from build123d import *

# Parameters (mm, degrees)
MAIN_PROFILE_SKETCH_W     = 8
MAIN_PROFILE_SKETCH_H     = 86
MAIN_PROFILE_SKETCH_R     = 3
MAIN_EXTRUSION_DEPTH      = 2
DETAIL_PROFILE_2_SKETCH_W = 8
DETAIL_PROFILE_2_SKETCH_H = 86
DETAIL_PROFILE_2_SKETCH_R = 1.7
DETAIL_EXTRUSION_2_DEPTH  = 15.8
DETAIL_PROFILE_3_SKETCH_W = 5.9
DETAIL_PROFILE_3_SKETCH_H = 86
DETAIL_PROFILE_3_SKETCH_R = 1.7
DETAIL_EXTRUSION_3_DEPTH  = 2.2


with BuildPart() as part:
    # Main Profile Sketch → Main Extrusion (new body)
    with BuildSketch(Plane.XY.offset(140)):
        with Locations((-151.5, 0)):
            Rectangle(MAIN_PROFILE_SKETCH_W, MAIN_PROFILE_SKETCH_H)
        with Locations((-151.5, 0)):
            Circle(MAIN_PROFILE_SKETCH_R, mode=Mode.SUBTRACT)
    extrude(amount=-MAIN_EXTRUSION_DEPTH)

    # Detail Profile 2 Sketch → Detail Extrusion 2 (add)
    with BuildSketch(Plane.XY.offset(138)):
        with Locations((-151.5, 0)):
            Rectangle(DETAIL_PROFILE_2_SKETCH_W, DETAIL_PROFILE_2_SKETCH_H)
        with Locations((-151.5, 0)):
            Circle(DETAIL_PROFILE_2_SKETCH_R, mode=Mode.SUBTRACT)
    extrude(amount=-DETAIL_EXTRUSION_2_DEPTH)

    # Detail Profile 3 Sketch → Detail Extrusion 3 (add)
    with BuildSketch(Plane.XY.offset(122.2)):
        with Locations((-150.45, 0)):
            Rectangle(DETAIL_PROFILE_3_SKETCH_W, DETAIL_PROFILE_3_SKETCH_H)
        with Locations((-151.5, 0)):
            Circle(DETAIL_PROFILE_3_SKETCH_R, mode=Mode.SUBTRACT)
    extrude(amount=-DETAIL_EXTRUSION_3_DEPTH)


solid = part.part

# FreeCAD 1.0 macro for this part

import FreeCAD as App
import Part
import Sketcher

V = App.Vector

doc = App.newDocument("Part")
params = doc.addObject("Spreadsheet::Sheet", "Params")
for row, (alias, value) in enumerate([
    ("sketch1_diameter", "6 mm"),
    ("sketch1_width", "8 mm"),
    ("sketch1_height", "86 mm"),
    ("pad1_length", "2 mm"),
    ("sketch2_diameter", "3.4 mm"),
    ("sketch2_width", "8 mm"),
    ("sketch2_height", "86 mm"),
    ("pad2_length", "15.8 mm"),
    ("sketch3_diameter", "3.4 mm"),
    ("sketch3_height", "86 mm"),
    ("sketch3_width", "5.9 mm"),
    ("pad3_length", "2.2 mm"),
], start=1):
    params.set(f"A{row}", alias)
    params.set(f"B{row}", "=" + value)
    params.setAlias(f"B{row}", alias)

body = doc.addObject("PartDesign::Body", "Body")

# Sketch on XY plane
sketch1 = body.newObject("Sketcher::SketchObject", "Sketch")
sketch1.AttachmentSupport = (doc.getObject("XY_Plane"), [""])
sketch1.MapMode = "FlatFace"
sketch1.AttachmentOffset = App.Placement(V(0, 0, 140), App.Rotation())
sketch1.addGeometry(Part.LineSegment(V(-155.5, 43, 0), V(-155.5, -43, 0)), False)
sketch1.addGeometry(Part.LineSegment(V(-155.5, -43, 0), V(-147.5, -43, 0)), False)
sketch1.addGeometry(Part.LineSegment(V(-147.5, -43, 0), V(-147.5, 43, 0)), False)
sketch1.addGeometry(Part.LineSegment(V(-147.5, 43, 0), V(-155.5, 43, 0)), False)
sketch1.addGeometry(Part.Circle(V(-151.5, 0, 0), V(0, 0, 1), 3), False)
sketch1.addConstraint(Sketcher.Constraint("Coincident", 0, 2, 1, 1))
sketch1.addConstraint(Sketcher.Constraint("Coincident", 1, 2, 2, 1))
sketch1.addConstraint(Sketcher.Constraint("Coincident", 2, 2, 3, 1))
sketch1.addConstraint(Sketcher.Constraint("Coincident", 3, 2, 0, 1))
sketch1.addConstraint(Sketcher.Constraint("Vertical", 0))
sketch1.addConstraint(Sketcher.Constraint("Horizontal", 1))
sketch1.addConstraint(Sketcher.Constraint("Vertical", 2))
sketch1.addConstraint(Sketcher.Constraint("Horizontal", 3))
sketch1.addConstraint(Sketcher.Constraint("PointOnObject", 4, 3, -1))
sketch1.addConstraint(Sketcher.Constraint("Diameter", 4, 6.0))
sketch1.addConstraint(Sketcher.Constraint("DistanceX", 1, 1, 1, 2, 8.0))
sketch1.addConstraint(Sketcher.Constraint("DistanceY", 0, 2, 0, 1, 86.0))
sketch1.addConstraint(Sketcher.Constraint("DistanceY", 0, 2, -1, 1, 43.0))
sketch1.addConstraint(Sketcher.Constraint("DistanceX", 0, 2, 4, 3, 4.0))
sketch1.addConstraint(Sketcher.Constraint("DistanceX", 4, 3, -1, 1, 151.5))
sketch1.setExpression("Constraints[9]", "Params.sketch1_diameter")
sketch1.setExpression("Constraints[10]", "Params.sketch1_width")
sketch1.setExpression("Constraints[11]", "Params.sketch1_height")
pad1 = body.newObject("PartDesign::Pad", "Pad")
pad1.Profile = sketch1
pad1.setExpression("Length", "Params.pad1_length")
pad1.Reversed = True

# Sketch on XY plane
sketch2 = body.newObject("Sketcher::SketchObject", "Sketch001")
sketch2.AttachmentSupport = (doc.getObject("XY_Plane"), [""])
sketch2.MapMode = "FlatFace"
sketch2.AttachmentOffset = App.Placement(V(0, 0, 138), App.Rotation())
sketch2.addGeometry(Part.LineSegment(V(-155.5, 43, 0), V(-155.5, -43, 0)), False)
sketch2.addGeometry(Part.LineSegment(V(-155.5, -43, 0), V(-147.5, -43, 0)), False)
sketch2.addGeometry(Part.LineSegment(V(-147.5, -43, 0), V(-147.5, 43, 0)), False)
sketch2.addGeometry(Part.LineSegment(V(-147.5, 43, 0), V(-155.5, 43, 0)), False)
sketch2.addGeometry(Part.Circle(V(-151.5, 0, 0), V(0, 0, 1), 1.7), False)
sketch2.addConstraint(Sketcher.Constraint("Coincident", 0, 2, 1, 1))
sketch2.addConstraint(Sketcher.Constraint("Coincident", 1, 2, 2, 1))
sketch2.addConstraint(Sketcher.Constraint("Coincident", 2, 2, 3, 1))
sketch2.addConstraint(Sketcher.Constraint("Coincident", 3, 2, 0, 1))
sketch2.addConstraint(Sketcher.Constraint("Vertical", 0))
sketch2.addConstraint(Sketcher.Constraint("Horizontal", 1))
sketch2.addConstraint(Sketcher.Constraint("Vertical", 2))
sketch2.addConstraint(Sketcher.Constraint("Horizontal", 3))
sketch2.addConstraint(Sketcher.Constraint("PointOnObject", 4, 3, -1))
sketch2.addConstraint(Sketcher.Constraint("Diameter", 4, 3.4))
sketch2.addConstraint(Sketcher.Constraint("DistanceX", 1, 1, 1, 2, 8.0))
sketch2.addConstraint(Sketcher.Constraint("DistanceY", 0, 2, 0, 1, 86.0))
sketch2.addConstraint(Sketcher.Constraint("DistanceY", 0, 2, -1, 1, 43.0))
sketch2.addConstraint(Sketcher.Constraint("DistanceX", 0, 2, 4, 3, 4.0))
sketch2.addConstraint(Sketcher.Constraint("DistanceX", 4, 3, -1, 1, 151.5))
sketch2.setExpression("Constraints[9]", "Params.sketch2_diameter")
sketch2.setExpression("Constraints[10]", "Params.sketch2_width")
sketch2.setExpression("Constraints[11]", "Params.sketch2_height")
pad2 = body.newObject("PartDesign::Pad", "Pad001")
pad2.Profile = sketch2
pad2.setExpression("Length", "Params.pad2_length")
pad2.Reversed = True

# Sketch on XY plane
sketch3 = body.newObject("Sketcher::SketchObject", "Sketch002")
sketch3.AttachmentSupport = (doc.getObject("XY_Plane"), [""])
sketch3.MapMode = "FlatFace"
sketch3.AttachmentOffset = App.Placement(V(0, 0, 122.2), App.Rotation())
sketch3.addGeometry(Part.LineSegment(V(-153.4, 43, 0), V(-153.4, -43, 0)), False)
sketch3.addGeometry(Part.LineSegment(V(-153.4, -43, 0), V(-147.5, -43, 0)), False)
sketch3.addGeometry(Part.LineSegment(V(-147.5, -43, 0), V(-147.5, 43, 0)), False)
sketch3.addGeometry(Part.LineSegment(V(-147.5, 43, 0), V(-153.4, 43, 0)), False)
sketch3.addGeometry(Part.Circle(V(-151.5, 0, 0), V(0, 0, 1), 1.7), False)
sketch3.addConstraint(Sketcher.Constraint("Coincident", 0, 2, 1, 1))
sketch3.addConstraint(Sketcher.Constraint("Coincident", 1, 2, 2, 1))
sketch3.addConstraint(Sketcher.Constraint("Coincident", 2, 2, 3, 1))
sketch3.addConstraint(Sketcher.Constraint("Coincident", 3, 2, 0, 1))
sketch3.addConstraint(Sketcher.Constraint("Vertical", 0))
sketch3.addConstraint(Sketcher.Constraint("Horizontal", 1))
sketch3.addConstraint(Sketcher.Constraint("Vertical", 2))
sketch3.addConstraint(Sketcher.Constraint("Horizontal", 3))
sketch3.addConstraint(Sketcher.Constraint("PointOnObject", 4, 3, -1))
sketch3.addConstraint(Sketcher.Constraint("Diameter", 4, 3.4))
sketch3.addConstraint(Sketcher.Constraint("DistanceY", 0, 2, 0, 1, 86.0))
sketch3.addConstraint(Sketcher.Constraint("DistanceX", 1, 1, 1, 2, 5.9))
sketch3.addConstraint(Sketcher.Constraint("DistanceY", 0, 2, -1, 1, 43.0))
sketch3.addConstraint(Sketcher.Constraint("DistanceX", 4, 3, 1, 2, 4.0))
sketch3.addConstraint(Sketcher.Constraint("DistanceX", 4, 3, -1, 1, 151.5))
sketch3.setExpression("Constraints[9]", "Params.sketch3_diameter")
sketch3.setExpression("Constraints[10]", "Params.sketch3_height")
sketch3.setExpression("Constraints[11]", "Params.sketch3_width")
pad3 = body.newObject("PartDesign::Pad", "Pad002")
pad3.Profile = sketch3
pad3.setExpression("Length", "Params.pad3_length")
pad3.Reversed = True

doc.recompute()
